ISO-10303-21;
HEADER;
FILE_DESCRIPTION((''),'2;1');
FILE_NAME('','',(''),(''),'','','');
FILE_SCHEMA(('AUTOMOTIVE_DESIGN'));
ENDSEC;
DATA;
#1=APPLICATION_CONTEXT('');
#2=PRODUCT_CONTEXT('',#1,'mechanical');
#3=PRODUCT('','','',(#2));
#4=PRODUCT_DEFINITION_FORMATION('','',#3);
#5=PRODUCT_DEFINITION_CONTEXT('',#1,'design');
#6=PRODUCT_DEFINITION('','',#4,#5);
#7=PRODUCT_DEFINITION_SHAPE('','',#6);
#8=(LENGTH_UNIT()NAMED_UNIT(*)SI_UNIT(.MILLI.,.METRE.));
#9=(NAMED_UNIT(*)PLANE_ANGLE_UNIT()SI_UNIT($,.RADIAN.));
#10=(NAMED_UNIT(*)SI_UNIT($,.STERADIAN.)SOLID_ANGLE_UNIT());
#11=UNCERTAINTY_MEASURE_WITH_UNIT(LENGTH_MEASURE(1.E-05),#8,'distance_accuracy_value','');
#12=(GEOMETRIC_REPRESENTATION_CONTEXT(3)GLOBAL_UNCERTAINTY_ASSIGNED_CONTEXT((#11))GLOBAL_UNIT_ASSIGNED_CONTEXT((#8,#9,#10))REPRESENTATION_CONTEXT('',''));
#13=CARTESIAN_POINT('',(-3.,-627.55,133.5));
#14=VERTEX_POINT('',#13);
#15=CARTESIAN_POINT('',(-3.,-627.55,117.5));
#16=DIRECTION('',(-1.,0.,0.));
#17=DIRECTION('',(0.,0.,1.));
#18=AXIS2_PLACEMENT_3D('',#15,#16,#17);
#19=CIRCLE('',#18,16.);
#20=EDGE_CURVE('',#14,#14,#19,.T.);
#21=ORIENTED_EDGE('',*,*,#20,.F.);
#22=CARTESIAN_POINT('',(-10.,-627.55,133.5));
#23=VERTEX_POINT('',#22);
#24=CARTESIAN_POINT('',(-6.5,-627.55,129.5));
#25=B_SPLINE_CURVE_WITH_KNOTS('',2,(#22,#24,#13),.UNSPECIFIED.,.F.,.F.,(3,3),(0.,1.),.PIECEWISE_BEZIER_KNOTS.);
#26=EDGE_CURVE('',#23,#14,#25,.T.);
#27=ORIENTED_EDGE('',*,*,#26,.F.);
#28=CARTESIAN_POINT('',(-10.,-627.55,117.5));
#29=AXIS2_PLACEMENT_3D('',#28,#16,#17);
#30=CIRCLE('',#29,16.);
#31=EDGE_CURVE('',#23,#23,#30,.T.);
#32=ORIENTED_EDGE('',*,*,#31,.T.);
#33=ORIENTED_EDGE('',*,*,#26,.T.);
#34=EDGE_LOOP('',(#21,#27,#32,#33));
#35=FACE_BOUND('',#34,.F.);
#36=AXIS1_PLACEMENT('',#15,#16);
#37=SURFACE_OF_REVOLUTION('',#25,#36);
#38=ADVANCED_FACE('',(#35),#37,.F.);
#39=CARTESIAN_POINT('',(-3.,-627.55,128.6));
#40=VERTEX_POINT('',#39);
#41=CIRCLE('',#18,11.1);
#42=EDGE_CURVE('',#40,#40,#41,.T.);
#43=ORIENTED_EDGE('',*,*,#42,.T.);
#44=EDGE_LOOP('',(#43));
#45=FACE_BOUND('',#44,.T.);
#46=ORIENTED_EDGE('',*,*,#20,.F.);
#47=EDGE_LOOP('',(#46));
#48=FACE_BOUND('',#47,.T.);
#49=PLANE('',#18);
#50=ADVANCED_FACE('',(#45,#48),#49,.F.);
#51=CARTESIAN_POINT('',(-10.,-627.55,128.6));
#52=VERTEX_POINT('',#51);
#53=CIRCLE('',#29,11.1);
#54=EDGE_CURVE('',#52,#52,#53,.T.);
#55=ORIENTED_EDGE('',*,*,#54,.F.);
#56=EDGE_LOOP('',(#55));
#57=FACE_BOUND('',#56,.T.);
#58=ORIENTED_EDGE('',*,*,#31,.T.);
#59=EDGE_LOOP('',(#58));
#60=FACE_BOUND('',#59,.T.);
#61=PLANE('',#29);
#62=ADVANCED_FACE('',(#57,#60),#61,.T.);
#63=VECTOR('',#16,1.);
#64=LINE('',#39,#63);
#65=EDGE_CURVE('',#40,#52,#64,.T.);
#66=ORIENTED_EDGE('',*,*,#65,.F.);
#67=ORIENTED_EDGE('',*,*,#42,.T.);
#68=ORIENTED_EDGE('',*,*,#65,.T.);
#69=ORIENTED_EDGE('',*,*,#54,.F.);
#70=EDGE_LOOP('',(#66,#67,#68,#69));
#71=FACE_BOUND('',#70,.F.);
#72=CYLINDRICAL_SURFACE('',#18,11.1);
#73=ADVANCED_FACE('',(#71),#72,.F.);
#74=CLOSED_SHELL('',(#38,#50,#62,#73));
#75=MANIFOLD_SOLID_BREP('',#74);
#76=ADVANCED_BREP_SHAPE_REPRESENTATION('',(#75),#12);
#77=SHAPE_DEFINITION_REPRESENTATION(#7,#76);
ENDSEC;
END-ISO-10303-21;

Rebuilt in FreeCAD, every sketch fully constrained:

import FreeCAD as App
import Part
import Sketcher
Q = App.Units.Quantity

doc = App.newDocument("Part")
params = doc.addObject("Spreadsheet::Sheet", "Params")
for row, (alias, value) in enumerate([
    ("sketch1_height", "4.9 mm"),
    ("revolution_angle", "360 deg"),
], start=1):
    params.set(f"A{row}", alias)
    params.set(f"B{row}", "=" + value)
    params.setAlias(f"B{row}", alias)

body = doc.addObject("PartDesign::Body", "Body")

sketch1 = body.newObject("Sketcher::SketchObject", "Sketch")
sketch1.AttachmentSupport = (doc.getObject("XZ_Plane"), [""])
sketch1.MapMode = "FlatFace"
sketch1.AttachmentOffset = App.Placement(App.Vector(0, 0, 627.55), App.Rotation())
sketch1.addGeometry([
    Part.LineSegment(App.Vector(-3, 133.5, 0), App.Vector(-3, 128.6, 0)),
    Part.LineSegment(App.Vector(-3, 128.6, 0), App.Vector(-10, 128.6, 0)),
    Part.LineSegment(App.Vector(-10, 128.6, 0), App.Vector(-10, 133.5, 0)),
    Part.BSplineCurve([App.Vector(-10, 133.5, 0), App.Vector(-6.5, 129.5, 0), App.Vector(-3, 133.5, 0)], [3, 3], [0, 1], False, 2, [1, 1, 1], False),
], False)
sketch1.addGeometry(Part.LineSegment(App.Vector(-3, 117.5, 0), App.Vector(-10, 117.5, 0)), True)
sketch1.addConstraint([
    Sketcher.Constraint("Block", 3),
    Sketcher.Constraint("Coincident", 0, 2, 1, 1),
    Sketcher.Constraint("Coincident", 1, 2, 2, 1),
    Sketcher.Constraint("Coincident", 2, 2, 3, 1),
    Sketcher.Constraint("Coincident", 3, 2, 0, 1),
    Sketcher.Constraint("Vertical", 0),
    Sketcher.Constraint("Horizontal", 1),
    Sketcher.Constraint("Vertical", 2),
    Sketcher.Constraint("Horizontal", 4),
    Sketcher.Constraint("Vertical", 0, 2, 4, 1),
    Sketcher.Constraint("Vertical", 2, 2, 4, 2),
    Sketcher.Constraint("DistanceY", 0, 2, 0, 1, Q("4.9 mm")),
    Sketcher.Constraint("DistanceY", 4, 1, 2, 2, Q("16 mm")),
])
sketch1.setExpression("Constraints[11]", "Params.sketch1_height")
revolution = body.newObject("PartDesign::Revolution", "Revolution")
revolution.Profile = sketch1
revolution.ReferenceAxis = (sketch1, ["Axis0"])
revolution.setExpression("Angle", "Params.revolution_angle")

doc.recompute()
